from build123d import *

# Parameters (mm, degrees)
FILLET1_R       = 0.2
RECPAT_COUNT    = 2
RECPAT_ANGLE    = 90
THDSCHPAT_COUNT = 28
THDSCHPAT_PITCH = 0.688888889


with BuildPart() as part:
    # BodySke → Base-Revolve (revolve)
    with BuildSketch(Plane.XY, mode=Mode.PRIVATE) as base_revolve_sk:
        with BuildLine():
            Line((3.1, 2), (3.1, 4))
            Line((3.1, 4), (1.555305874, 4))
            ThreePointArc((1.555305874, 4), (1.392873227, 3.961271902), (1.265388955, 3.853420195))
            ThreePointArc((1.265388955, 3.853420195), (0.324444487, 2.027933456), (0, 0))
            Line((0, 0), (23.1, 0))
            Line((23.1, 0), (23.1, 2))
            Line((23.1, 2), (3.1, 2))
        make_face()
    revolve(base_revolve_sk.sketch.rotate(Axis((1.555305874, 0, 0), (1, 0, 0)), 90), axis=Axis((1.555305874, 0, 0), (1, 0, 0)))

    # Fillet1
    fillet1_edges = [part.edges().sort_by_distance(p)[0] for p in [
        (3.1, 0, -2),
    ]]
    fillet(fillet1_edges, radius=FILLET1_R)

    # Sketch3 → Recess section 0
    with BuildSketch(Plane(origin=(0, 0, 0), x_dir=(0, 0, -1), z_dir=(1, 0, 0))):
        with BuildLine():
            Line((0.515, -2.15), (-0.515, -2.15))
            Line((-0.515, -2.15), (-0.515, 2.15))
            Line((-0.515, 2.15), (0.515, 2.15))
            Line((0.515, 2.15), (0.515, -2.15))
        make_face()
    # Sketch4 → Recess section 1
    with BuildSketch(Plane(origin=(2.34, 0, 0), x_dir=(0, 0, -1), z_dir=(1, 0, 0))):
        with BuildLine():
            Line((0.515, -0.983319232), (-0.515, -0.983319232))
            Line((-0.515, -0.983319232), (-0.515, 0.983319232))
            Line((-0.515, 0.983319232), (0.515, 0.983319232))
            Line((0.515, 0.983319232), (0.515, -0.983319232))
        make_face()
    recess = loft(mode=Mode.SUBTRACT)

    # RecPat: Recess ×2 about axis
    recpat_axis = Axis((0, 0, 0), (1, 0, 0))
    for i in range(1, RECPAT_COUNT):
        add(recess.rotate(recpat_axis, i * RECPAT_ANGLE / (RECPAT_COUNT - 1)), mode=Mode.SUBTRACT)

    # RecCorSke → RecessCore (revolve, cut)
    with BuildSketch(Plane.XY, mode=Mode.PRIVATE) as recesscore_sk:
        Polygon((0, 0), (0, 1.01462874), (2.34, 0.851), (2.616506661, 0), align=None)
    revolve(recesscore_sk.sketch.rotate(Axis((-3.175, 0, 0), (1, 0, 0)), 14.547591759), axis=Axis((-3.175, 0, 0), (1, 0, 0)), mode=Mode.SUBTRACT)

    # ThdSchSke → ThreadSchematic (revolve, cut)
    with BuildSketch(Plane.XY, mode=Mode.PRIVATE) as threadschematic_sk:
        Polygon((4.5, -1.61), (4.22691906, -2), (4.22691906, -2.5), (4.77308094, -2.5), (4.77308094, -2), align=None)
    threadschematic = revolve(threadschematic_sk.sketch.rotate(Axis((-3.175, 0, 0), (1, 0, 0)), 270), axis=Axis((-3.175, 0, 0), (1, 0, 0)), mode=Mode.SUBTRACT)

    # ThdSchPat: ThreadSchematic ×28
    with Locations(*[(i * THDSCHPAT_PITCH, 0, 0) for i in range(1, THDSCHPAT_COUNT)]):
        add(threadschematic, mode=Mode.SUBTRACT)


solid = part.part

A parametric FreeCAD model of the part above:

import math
import FreeCAD as App
import Part
import Sketcher
Q = App.Units.Quantity


def edges_at(feature, points):
    """Names of the edges that pass closest to the given points."""
    edges = feature.Shape.Edges
    near = lambda p: min(range(len(edges)), key=lambda i: edges[i].distToShape(Part.Vertex(*p))[0])
    return sorted({f"Edge{near(p) + 1}" for p in points})


def add_polygon(sketch, points):
    """Adds a closed chain of lines whose ends are joined by coincident constraints."""
    first, n = sketch.GeometryCount, len(points)
    for a, b in zip(points, points[1:] + points[:1]):
        sketch.addGeometry(Part.LineSegment(App.Vector(*a, 0), App.Vector(*b, 0)), False)
    for i in range(n):
        sketch.addConstraint(Sketcher.Constraint("Coincident", first + i, 2, first + (i + 1) % n, 1))

doc = App.newDocument("Part")
body = doc.addObject("PartDesign::Body", "Body")

# Sketch on XY plane
sketch1 = doc.addObject("Sketcher::SketchObject", "Sketch")
body.addObject(sketch1)
sketch1.AttachmentSupport = (doc.XY_Plane, [""])
sketch1.MapMode = "FlatFace"
sketch1.addGeometry([
    Part.LineSegment(App.Vector(3.1, 2, 0), App.Vector(3.1, 4, 0)),  # 0
    Part.LineSegment(App.Vector(3.1, 4, 0), App.Vector(1.56, 4, 0)),  # 1
    Part.ArcOfCircle(Part.Circle(App.Vector(1.56, 3.64, 0), App.Vector(0, 0, 1), 0.36), math.radians(90), math.radians(144)),  # 2
    Part.ArcOfCircle(Part.Circle(App.Vector(6.5, 0, 0), App.Vector(0, 0, 1), 6.5), math.radians(144), math.radians(180)),  # 3
    Part.LineSegment(App.Vector(0, 0, 0), App.Vector(23.1, 0, 0)),  # 4
    Part.LineSegment(App.Vector(23.1, 0, 0), App.Vector(23.1, 2, 0)),  # 5
    Part.LineSegment(App.Vector(23.1, 2, 0), App.Vector(3.1, 2, 0)),  # 6
], False)
sketch1.addConstraint([
    Sketcher.Constraint("Coincident", 0, 2, 1, 1),
    Sketcher.Constraint("Tangent", 1, 2, 2, 1),
    Sketcher.Constraint("Tangent", 2, 2, 3, 1),
    Sketcher.Constraint("Coincident", 3, 2, 4, 1),
    Sketcher.Constraint("Coincident", 4, 2, 5, 1),
    Sketcher.Constraint("Coincident", 5, 2, 6, 1),
    Sketcher.Constraint("Coincident", 6, 2, 0, 1),
    Sketcher.Constraint("Vertical", 0),
    Sketcher.Constraint("Horizontal", 1),
    Sketcher.Constraint("Horizontal", 4),
    Sketcher.Constraint("Vertical", 5),
    Sketcher.Constraint("Horizontal", 6),
    Sketcher.Constraint("Coincident", 3, 2, -1, 1),
    Sketcher.Constraint("PointOnObject", 3, 3, -1),
    Sketcher.Constraint("Equal", 0, 5),
    Sketcher.Constraint("Radius", 3, Q("6.5 mm")),
    Sketcher.Constraint("DistanceX", 6, 2, 6, 1, Q("20 mm")),
    Sketcher.Constraint("DistanceY", 0, 1, 0, 2, Q("2 mm")),
    Sketcher.Constraint("Radius", 2, Q("0.36 mm")),
    Sketcher.Constraint("DistanceX", 4, 1, 4, 2, Q("23.1 mm")),
])
revolution = doc.addObject("PartDesign::Revolution", "Revolution")
body.addObject(revolution)
revolution.Profile = sketch1
revolution.ReferenceAxis = (sketch1, ["H_Axis"])
revolution.Angle = 360
doc.recompute()

fillet = doc.addObject("PartDesign::Fillet", "Fillet")
body.addObject(fillet)
fillet.Base = (revolution, edges_at(revolution, [(3.1, 0, -2)]))
fillet.Radius = 0.2

# Sketch on YZ plane
sketch2 = doc.addObject("Sketcher::SketchObject", "Sketch001")
body.addObject(sketch2)
sketch2.AttachmentSupport = (doc.YZ_Plane, [""])
sketch2.MapMode = "FlatFace"
add_polygon(sketch2, [(-2.1, 0.5), (-2.1, -0.5), (2.1, -0.5), (2.1, 0.5)])  # lines 0-3
sketch2.addConstraint([
    Sketcher.Constraint("Vertical", 0),
    Sketcher.Constraint("Horizontal", 1),
    Sketcher.Constraint("Vertical", 2),
    Sketcher.Constraint("Horizontal", 3),
    Sketcher.Constraint("Symmetric", 0, 2, 2, 2, -1, 1),
    Sketcher.Constraint("DistanceX", 1, 1, 1, 2, Q("4.3 mm")),
    Sketcher.Constraint("DistanceY", 0, 2, 0, 1, Q("1.03 mm")),
])

# Sketch on YZ plane
sketch3 = doc.addObject("Sketcher::SketchObject", "Sketch002")
body.addObject(sketch3)
sketch3.AttachmentSupport = (doc.YZ_Plane, [""])
sketch3.MapMode = "FlatFace"
sketch3.AttachmentOffset = App.Placement(App.Vector(0, 0, 2.34), App.Rotation())
add_polygon(sketch3, [(-1, 0.5), (-1, -0.5), (1, -0.5), (1, 0.5)])  # lines 0-3
sketch3.addConstraint([
    Sketcher.Constraint("Vertical", 0),
    Sketcher.Constraint("Horizontal", 1),
    Sketcher.Constraint("Vertical", 2),
    Sketcher.Constraint("Horizontal", 3),
    Sketcher.Constraint("Symmetric", 0, 2, 2, 2, -1, 1),
    Sketcher.Constraint("DistanceY", 0, 2, 0, 1, Q("1.03 mm")),
    Sketcher.Constraint("DistanceX", 1, 1, 1, 2, Q("1.966638 mm")),
])

subtractiveloft = doc.addObject("PartDesign::SubtractiveLoft", "SubtractiveLoft")
body.addObject(subtractiveloft)
subtractiveloft.Profile = sketch2
subtractiveloft.Sections = [sketch3]
doc.recompute()

polarpattern = doc.addObject("PartDesign::PolarPattern", "PolarPattern")
body.addObject(polarpattern)
polarpattern.Originals = [subtractiveloft]
polarpattern.Axis = (doc.X_Axis, [""])
polarpattern.Angle = 90
polarpattern.Occurrences = 2
body.Tip = polarpattern

# Sketch on XY plane
sketch4 = doc.addObject("Sketcher::SketchObject", "Sketch003")
body.addObject(sketch4)
sketch4.AttachmentSupport = (doc.XY_Plane, [""])
sketch4.MapMode = "FlatFace"
add_polygon(sketch4, [(0, 1), (0, 0), (2.6, 0), (2.3, 0.9)])  # lines 0-3
sketch4.addConstraint([
    Sketcher.Constraint("Vertical", 0),
    Sketcher.Constraint("Horizontal", 1),
    Sketcher.Constraint("Coincident", 0, 2, -1, 1),
    Sketcher.Constraint("Angle", 2, Q("108 deg")),
    Sketcher.Constraint("Angle", 3, Q("176 deg")),
    Sketcher.Constraint("DistanceX", -1, 1, 2, 2, Q("2.34 mm")),
    Sketcher.Constraint("DistanceY", -1, 1, 2, 2, Q("0.851 mm")),
])
groove = doc.addObject("PartDesign::Groove", "Groove")
body.addObject(groove)
groove.Profile = sketch4
groove.ReferenceAxis = (sketch4, ["H_Axis"])
groove.Angle = 360

# Sketch on XY plane
sketch5 = doc.addObject("Sketcher::SketchObject", "Sketch004")
body.addObject(sketch5)
sketch5.AttachmentSupport = (doc.XY_Plane, [""])
sketch5.MapMode = "FlatFace"
add_polygon(sketch5, [(4.5, -1.61), (4.23, -2), (4.23, -2.5), (4.77, -2.5), (4.77, -2)])  # lines 0-4
sketch5.addConstraint([
    Sketcher.Constraint("Vertical", 1),
    Sketcher.Constraint("Horizontal", 2),
    Sketcher.Constraint("Vertical", 3),
    Sketcher.Constraint("Horizontal", 0, 2, 3, 2),
    Sketcher.Constraint("Equal", 0, 4),
    Sketcher.Constraint("Angle", 0, Q("-125 deg")),
    Sketcher.Constraint("DistanceY", 1, 2, 1, 1, Q("0.5 mm")),
    Sketcher.Constraint("DistanceY", 0, 2, -1, 1, Q("2 mm")),
    Sketcher.Constraint("DistanceX", -1, 1, 4, 2, Q("4.5 mm")),
    Sketcher.Constraint("DistanceY", 4, 2, -1, 1, Q("1.61 mm")),
])
groove2 = doc.addObject("PartDesign::Groove", "Groove001")
body.addObject(groove2)
groove2.Profile = sketch5
groove2.ReferenceAxis = (sketch5, ["H_Axis"])
groove2.Angle = 360
doc.recompute()

linearpattern = doc.addObject("PartDesign::LinearPattern", "LinearPattern")
body.addObject(linearpattern)
linearpattern.Originals = [groove2]
linearpattern.Direction = (doc.X_Axis, [""])
linearpattern.Mode = "offset"
linearpattern.Offset = 0.688889
linearpattern.Occurrences = 28
body.Tip = linearpattern

doc.recompute()
